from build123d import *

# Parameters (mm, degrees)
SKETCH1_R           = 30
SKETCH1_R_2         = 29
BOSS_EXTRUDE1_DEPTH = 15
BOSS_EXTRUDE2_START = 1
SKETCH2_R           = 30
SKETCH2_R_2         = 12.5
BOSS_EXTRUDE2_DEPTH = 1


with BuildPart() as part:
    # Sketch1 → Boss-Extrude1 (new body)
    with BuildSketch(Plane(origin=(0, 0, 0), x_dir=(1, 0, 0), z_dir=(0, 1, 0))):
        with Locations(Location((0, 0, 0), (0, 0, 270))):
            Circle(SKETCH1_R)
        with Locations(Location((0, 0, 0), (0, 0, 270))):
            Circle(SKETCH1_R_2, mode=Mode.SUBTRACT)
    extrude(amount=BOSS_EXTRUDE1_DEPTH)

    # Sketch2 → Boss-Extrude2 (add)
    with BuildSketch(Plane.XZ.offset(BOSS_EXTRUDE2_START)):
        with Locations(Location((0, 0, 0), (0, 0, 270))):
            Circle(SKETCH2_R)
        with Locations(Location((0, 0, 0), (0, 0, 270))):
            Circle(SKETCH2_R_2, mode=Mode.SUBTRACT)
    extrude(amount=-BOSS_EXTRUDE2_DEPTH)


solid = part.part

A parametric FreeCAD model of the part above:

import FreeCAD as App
import Part
import Sketcher

doc = App.newDocument("Part")
params = doc.addObject("Spreadsheet::Sheet", "Params")
for row, (alias, value) in enumerate([
    ("sketch1_diameter", "60 mm"),
    ("sketch1_diameter2", "58 mm"),
    ("pad1_length", "15 mm"),
    ("sketch2_diameter", "60 mm"),
    ("sketch2_diameter2", "25 mm"),
    ("pad2_length", "1 mm"),
], start=1):
    params.set(f"A{row}", alias)
    params.set(f"B{row}", "=" + value)
    params.setAlias(f"B{row}", alias)

body = doc.addObject("PartDesign::Body", "Body")

# Sketch on XZ plane
sketch1 = body.newObject("Sketcher::SketchObject", "Sketch")
sketch1.AttachmentSupport = (doc.getObject("XZ_Plane"), [""])
sketch1.MapMode = "FlatFace"
sketch1.addGeometry([
    Part.Circle(App.Vector(0, 0, 0), App.Vector(0, 0, 1), 30),
    Part.Circle(App.Vector(0, 0, 0), App.Vector(0, 0, 1), 29),
], False)
sketch1.addConstraint([
    Sketcher.Constraint("Coincident", 0, 3, -1, 1),
    Sketcher.Constraint("Coincident", 1, 3, -1, 1),
    Sketcher.Constraint("Diameter", 0, 60.0),
    Sketcher.Constraint("Diameter", 1, 58.0),
])
sketch1.setExpression("Constraints[2]", "Params.sketch1_diameter")
sketch1.setExpression("Constraints[3]", "Params.sketch1_diameter2")
pad1 = body.newObject("PartDesign::Pad", "Pad")
pad1.Profile = sketch1
pad1.setExpression("Length", "Params.pad1_length")
pad1.Reversed = True

# Sketch on XZ plane
sketch2 = body.newObject("Sketcher::SketchObject", "Sketch001")
sketch2.AttachmentSupport = (doc.getObject("XZ_Plane"), [""])
sketch2.MapMode = "FlatFace"
sketch2.AttachmentOffset = App.Placement(App.Vector(0, 0, 1), App.Rotation())
sketch2.addGeometry([
    Part.Circle(App.Vector(0, 0, 0), App.Vector(0, 0, 1), 30),
    Part.Circle(App.Vector(0, 0, 0), App.Vector(0, 0, 1), 12.5),
], False)
sketch2.addConstraint([
    Sketcher.Constraint("Coincident", 0, 3, -1, 1),
    Sketcher.Constraint("Coincident", 1, 3, -1, 1),
    Sketcher.Constraint("Diameter", 0, 60.0),
    Sketcher.Constraint("Diameter", 1, 25.0),
])
sketch2.setExpression("Constraints[2]", "Params.sketch2_diameter")
sketch2.setExpression("Constraints[3]", "Params.sketch2_diameter2")
pad2 = body.newObject("PartDesign::Pad", "Pad001")
pad2.Profile = sketch2
pad2.setExpression("Length", "Params.pad2_length")
pad2.Reversed = True

doc.recompute()
